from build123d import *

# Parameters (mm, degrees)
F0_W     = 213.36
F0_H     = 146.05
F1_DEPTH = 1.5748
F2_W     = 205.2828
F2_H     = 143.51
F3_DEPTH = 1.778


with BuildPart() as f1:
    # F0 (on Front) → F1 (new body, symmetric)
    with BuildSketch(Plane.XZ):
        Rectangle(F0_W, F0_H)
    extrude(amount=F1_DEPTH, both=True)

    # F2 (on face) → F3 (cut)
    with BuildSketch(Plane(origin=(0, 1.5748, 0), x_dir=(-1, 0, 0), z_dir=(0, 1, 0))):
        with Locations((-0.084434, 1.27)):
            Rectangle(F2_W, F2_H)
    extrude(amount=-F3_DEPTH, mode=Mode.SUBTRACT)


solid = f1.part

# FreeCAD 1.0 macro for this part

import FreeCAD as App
import Part
import Sketcher
Q = App.Units.Quantity


def add_polygon(sketch, points):
    """Adds a closed chain of lines whose ends are joined by coincident constraints."""
    first, n = sketch.GeometryCount, len(points)
    for a, b in zip(points, points[1:] + points[:1]):
        sketch.addGeometry(Part.LineSegment(App.Vector(*a, 0), App.Vector(*b, 0)), False)
    for i in range(n):
        sketch.addConstraint(Sketcher.Constraint("Coincident", first + i, 2, first + (i + 1) % n, 1))

doc = App.newDocument("Part")
body = doc.addObject("PartDesign::Body", "Body")

sketch1 = body.newObject("Sketcher::SketchObject", "Sketch")
sketch1.AttachmentSupport = (doc.getObject("XZ_Plane"), [""])
sketch1.MapMode = "FlatFace"
add_polygon(sketch1, [(-107, 73), (-107, -73), (107, -73), (107, 73)])
sketch1.addConstraint(Sketcher.Constraint("Vertical", 0))
sketch1.addConstraint(Sketcher.Constraint("Horizontal", 1))
sketch1.addConstraint(Sketcher.Constraint("Vertical", 2))
sketch1.addConstraint(Sketcher.Constraint("Horizontal", 3))
sketch1.addConstraint(Sketcher.Constraint("Symmetric", 0, 2, 2, 2, -1, 1))
sketch1.addConstraint(Sketcher.Constraint("DistanceX", 1, 1, 1, 2, Q("8.4 in")))
sketch1.addConstraint(Sketcher.Constraint("DistanceY", 0, 2, 0, 1, Q("5.75 in")))
pad1 = body.newObject("PartDesign::Pad", "Pad")
pad1.Profile = sketch1
pad1.Length = Q("0.124 in")
pad1.Midplane = True

sketch2 = body.newObject("Sketcher::SketchObject", "Sketch001")
sketch2.AttachmentSupport = (doc.getObject("XZ_Plane"), [""])
sketch2.MapMode = "FlatFace"
sketch2.AttachmentOffset = App.Placement(App.Vector(0, 0, -0.062 * 25.4), App.Rotation())
add_polygon(sketch2, [(103, 73), (103, -70), (-103, -70), (-103, 73)])
sketch2.addConstraint(Sketcher.Constraint("Vertical", 0))
sketch2.addConstraint(Sketcher.Constraint("Horizontal", 1))
sketch2.addConstraint(Sketcher.Constraint("Vertical", 2))
sketch2.addConstraint(Sketcher.Constraint("Horizontal", 3))
sketch2.addConstraint(Sketcher.Constraint("DistanceY", 0, 2, 0, 1, Q("5.65 in")))
sketch2.addConstraint(Sketcher.Constraint("DistanceX", 1, 2, 1, 1, Q("8.082 in")))
sketch2.addConstraint(Sketcher.Constraint("DistanceY", 0, 2, -1, 1, Q("2.775 in")))
sketch2.addConstraint(Sketcher.Constraint("DistanceX", -1, 1, 0, 2, 102.725834))
pocket1 = body.newObject("PartDesign::Pocket", "Pocket")
pocket1.Profile = sketch2
pocket1.Length = Q("0.07 in")
pocket1.Reversed = True

doc.recompute()
